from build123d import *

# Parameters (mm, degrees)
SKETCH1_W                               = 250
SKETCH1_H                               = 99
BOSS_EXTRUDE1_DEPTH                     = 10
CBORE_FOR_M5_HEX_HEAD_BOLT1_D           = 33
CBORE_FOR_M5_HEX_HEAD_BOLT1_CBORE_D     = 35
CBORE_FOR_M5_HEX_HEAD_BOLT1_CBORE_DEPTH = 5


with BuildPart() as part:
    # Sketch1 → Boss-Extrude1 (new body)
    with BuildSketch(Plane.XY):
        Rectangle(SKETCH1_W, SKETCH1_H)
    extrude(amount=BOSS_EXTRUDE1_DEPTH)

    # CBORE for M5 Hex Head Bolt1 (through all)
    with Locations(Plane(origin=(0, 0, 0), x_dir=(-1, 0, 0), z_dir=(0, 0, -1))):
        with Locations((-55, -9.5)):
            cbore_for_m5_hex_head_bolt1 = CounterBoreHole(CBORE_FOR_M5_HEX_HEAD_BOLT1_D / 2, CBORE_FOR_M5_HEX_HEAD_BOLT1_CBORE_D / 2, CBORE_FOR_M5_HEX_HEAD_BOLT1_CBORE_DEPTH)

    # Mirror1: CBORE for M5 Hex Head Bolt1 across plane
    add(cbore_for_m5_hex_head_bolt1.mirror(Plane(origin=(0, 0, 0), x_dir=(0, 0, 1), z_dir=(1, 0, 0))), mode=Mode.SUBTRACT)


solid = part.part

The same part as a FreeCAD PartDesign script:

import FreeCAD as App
import Part
import Sketcher


def add_polygon(sketch, points):
    """Adds a closed chain of lines whose ends are joined by coincident constraints."""
    first, n = sketch.GeometryCount, len(points)
    for a, b in zip(points, points[1:] + points[:1]):
        sketch.addGeometry(Part.LineSegment(App.Vector(*a, 0), App.Vector(*b, 0)), False)
    for i in range(n):
        sketch.addConstraint(Sketcher.Constraint("Coincident", first + i, 2, first + (i + 1) % n, 1))

doc = App.newDocument("Part")
body = doc.addObject("PartDesign::Body", "Body")

sketch1 = body.newObject("Sketcher::SketchObject", "Sketch")
sketch1.AttachmentSupport = (doc.getObject("XY_Plane"), [""])
sketch1.MapMode = "FlatFace"
add_polygon(sketch1, [(-125, 50), (-125, -50), (125, -50), (125, 50)])
sketch1.addConstraint(Sketcher.Constraint("Vertical", 0))
sketch1.addConstraint(Sketcher.Constraint("Horizontal", 1))
sketch1.addConstraint(Sketcher.Constraint("Vertical", 2))
sketch1.addConstraint(Sketcher.Constraint("Horizontal", 3))
sketch1.addConstraint(Sketcher.Constraint("Symmetric", 0, 2, 2, 2, -1, 1))
sketch1.addConstraint(Sketcher.Constraint("DistanceX", 1, 1, 1, 2, 250.0))
sketch1.addConstraint(Sketcher.Constraint("DistanceY", 0, 2, 0, 1, 99.0))
pad1 = body.newObject("PartDesign::Pad", "Pad")
pad1.Profile = sketch1
pad1.Length = 10

sketch2 = body.newObject("Sketcher::SketchObject", "Sketch001")
sketch2.AttachmentSupport = (doc.getObject("XY_Plane"), [""])
sketch2.MapMode = "FlatFace"
sketch2.addGeometry(Part.Circle(App.Vector(55, -10, 0), App.Vector(0, 0, 1), 16), False)
sketch2.addConstraint(Sketcher.Constraint("Diameter", 0, 33.0))
sketch2.addConstraint(Sketcher.Constraint("DistanceX", -1, 1, 0, 3, 55.0))
sketch2.addConstraint(Sketcher.Constraint("DistanceY", 0, 3, -1, 1, 9.5))
doc.recompute()
hole = body.newObject("PartDesign::Hole", "Hole")
hole.Profile = sketch2
hole.ThreadType = "None"
hole.Diameter = 33
hole.DepthType = "ThroughAll"
hole.HoleCutType = "Counterbore"
hole.HoleCutDiameter = 35
hole.HoleCutDepth = 5
hole.Reversed = True
doc.recompute()

mirrored = body.newObject("PartDesign::Mirrored", "Mirrored")
mirrored.Originals = [hole]
mirrored.MirrorPlane = (doc.getObject("YZ_Plane"), [""])
body.Tip = mirrored

doc.recompute()
